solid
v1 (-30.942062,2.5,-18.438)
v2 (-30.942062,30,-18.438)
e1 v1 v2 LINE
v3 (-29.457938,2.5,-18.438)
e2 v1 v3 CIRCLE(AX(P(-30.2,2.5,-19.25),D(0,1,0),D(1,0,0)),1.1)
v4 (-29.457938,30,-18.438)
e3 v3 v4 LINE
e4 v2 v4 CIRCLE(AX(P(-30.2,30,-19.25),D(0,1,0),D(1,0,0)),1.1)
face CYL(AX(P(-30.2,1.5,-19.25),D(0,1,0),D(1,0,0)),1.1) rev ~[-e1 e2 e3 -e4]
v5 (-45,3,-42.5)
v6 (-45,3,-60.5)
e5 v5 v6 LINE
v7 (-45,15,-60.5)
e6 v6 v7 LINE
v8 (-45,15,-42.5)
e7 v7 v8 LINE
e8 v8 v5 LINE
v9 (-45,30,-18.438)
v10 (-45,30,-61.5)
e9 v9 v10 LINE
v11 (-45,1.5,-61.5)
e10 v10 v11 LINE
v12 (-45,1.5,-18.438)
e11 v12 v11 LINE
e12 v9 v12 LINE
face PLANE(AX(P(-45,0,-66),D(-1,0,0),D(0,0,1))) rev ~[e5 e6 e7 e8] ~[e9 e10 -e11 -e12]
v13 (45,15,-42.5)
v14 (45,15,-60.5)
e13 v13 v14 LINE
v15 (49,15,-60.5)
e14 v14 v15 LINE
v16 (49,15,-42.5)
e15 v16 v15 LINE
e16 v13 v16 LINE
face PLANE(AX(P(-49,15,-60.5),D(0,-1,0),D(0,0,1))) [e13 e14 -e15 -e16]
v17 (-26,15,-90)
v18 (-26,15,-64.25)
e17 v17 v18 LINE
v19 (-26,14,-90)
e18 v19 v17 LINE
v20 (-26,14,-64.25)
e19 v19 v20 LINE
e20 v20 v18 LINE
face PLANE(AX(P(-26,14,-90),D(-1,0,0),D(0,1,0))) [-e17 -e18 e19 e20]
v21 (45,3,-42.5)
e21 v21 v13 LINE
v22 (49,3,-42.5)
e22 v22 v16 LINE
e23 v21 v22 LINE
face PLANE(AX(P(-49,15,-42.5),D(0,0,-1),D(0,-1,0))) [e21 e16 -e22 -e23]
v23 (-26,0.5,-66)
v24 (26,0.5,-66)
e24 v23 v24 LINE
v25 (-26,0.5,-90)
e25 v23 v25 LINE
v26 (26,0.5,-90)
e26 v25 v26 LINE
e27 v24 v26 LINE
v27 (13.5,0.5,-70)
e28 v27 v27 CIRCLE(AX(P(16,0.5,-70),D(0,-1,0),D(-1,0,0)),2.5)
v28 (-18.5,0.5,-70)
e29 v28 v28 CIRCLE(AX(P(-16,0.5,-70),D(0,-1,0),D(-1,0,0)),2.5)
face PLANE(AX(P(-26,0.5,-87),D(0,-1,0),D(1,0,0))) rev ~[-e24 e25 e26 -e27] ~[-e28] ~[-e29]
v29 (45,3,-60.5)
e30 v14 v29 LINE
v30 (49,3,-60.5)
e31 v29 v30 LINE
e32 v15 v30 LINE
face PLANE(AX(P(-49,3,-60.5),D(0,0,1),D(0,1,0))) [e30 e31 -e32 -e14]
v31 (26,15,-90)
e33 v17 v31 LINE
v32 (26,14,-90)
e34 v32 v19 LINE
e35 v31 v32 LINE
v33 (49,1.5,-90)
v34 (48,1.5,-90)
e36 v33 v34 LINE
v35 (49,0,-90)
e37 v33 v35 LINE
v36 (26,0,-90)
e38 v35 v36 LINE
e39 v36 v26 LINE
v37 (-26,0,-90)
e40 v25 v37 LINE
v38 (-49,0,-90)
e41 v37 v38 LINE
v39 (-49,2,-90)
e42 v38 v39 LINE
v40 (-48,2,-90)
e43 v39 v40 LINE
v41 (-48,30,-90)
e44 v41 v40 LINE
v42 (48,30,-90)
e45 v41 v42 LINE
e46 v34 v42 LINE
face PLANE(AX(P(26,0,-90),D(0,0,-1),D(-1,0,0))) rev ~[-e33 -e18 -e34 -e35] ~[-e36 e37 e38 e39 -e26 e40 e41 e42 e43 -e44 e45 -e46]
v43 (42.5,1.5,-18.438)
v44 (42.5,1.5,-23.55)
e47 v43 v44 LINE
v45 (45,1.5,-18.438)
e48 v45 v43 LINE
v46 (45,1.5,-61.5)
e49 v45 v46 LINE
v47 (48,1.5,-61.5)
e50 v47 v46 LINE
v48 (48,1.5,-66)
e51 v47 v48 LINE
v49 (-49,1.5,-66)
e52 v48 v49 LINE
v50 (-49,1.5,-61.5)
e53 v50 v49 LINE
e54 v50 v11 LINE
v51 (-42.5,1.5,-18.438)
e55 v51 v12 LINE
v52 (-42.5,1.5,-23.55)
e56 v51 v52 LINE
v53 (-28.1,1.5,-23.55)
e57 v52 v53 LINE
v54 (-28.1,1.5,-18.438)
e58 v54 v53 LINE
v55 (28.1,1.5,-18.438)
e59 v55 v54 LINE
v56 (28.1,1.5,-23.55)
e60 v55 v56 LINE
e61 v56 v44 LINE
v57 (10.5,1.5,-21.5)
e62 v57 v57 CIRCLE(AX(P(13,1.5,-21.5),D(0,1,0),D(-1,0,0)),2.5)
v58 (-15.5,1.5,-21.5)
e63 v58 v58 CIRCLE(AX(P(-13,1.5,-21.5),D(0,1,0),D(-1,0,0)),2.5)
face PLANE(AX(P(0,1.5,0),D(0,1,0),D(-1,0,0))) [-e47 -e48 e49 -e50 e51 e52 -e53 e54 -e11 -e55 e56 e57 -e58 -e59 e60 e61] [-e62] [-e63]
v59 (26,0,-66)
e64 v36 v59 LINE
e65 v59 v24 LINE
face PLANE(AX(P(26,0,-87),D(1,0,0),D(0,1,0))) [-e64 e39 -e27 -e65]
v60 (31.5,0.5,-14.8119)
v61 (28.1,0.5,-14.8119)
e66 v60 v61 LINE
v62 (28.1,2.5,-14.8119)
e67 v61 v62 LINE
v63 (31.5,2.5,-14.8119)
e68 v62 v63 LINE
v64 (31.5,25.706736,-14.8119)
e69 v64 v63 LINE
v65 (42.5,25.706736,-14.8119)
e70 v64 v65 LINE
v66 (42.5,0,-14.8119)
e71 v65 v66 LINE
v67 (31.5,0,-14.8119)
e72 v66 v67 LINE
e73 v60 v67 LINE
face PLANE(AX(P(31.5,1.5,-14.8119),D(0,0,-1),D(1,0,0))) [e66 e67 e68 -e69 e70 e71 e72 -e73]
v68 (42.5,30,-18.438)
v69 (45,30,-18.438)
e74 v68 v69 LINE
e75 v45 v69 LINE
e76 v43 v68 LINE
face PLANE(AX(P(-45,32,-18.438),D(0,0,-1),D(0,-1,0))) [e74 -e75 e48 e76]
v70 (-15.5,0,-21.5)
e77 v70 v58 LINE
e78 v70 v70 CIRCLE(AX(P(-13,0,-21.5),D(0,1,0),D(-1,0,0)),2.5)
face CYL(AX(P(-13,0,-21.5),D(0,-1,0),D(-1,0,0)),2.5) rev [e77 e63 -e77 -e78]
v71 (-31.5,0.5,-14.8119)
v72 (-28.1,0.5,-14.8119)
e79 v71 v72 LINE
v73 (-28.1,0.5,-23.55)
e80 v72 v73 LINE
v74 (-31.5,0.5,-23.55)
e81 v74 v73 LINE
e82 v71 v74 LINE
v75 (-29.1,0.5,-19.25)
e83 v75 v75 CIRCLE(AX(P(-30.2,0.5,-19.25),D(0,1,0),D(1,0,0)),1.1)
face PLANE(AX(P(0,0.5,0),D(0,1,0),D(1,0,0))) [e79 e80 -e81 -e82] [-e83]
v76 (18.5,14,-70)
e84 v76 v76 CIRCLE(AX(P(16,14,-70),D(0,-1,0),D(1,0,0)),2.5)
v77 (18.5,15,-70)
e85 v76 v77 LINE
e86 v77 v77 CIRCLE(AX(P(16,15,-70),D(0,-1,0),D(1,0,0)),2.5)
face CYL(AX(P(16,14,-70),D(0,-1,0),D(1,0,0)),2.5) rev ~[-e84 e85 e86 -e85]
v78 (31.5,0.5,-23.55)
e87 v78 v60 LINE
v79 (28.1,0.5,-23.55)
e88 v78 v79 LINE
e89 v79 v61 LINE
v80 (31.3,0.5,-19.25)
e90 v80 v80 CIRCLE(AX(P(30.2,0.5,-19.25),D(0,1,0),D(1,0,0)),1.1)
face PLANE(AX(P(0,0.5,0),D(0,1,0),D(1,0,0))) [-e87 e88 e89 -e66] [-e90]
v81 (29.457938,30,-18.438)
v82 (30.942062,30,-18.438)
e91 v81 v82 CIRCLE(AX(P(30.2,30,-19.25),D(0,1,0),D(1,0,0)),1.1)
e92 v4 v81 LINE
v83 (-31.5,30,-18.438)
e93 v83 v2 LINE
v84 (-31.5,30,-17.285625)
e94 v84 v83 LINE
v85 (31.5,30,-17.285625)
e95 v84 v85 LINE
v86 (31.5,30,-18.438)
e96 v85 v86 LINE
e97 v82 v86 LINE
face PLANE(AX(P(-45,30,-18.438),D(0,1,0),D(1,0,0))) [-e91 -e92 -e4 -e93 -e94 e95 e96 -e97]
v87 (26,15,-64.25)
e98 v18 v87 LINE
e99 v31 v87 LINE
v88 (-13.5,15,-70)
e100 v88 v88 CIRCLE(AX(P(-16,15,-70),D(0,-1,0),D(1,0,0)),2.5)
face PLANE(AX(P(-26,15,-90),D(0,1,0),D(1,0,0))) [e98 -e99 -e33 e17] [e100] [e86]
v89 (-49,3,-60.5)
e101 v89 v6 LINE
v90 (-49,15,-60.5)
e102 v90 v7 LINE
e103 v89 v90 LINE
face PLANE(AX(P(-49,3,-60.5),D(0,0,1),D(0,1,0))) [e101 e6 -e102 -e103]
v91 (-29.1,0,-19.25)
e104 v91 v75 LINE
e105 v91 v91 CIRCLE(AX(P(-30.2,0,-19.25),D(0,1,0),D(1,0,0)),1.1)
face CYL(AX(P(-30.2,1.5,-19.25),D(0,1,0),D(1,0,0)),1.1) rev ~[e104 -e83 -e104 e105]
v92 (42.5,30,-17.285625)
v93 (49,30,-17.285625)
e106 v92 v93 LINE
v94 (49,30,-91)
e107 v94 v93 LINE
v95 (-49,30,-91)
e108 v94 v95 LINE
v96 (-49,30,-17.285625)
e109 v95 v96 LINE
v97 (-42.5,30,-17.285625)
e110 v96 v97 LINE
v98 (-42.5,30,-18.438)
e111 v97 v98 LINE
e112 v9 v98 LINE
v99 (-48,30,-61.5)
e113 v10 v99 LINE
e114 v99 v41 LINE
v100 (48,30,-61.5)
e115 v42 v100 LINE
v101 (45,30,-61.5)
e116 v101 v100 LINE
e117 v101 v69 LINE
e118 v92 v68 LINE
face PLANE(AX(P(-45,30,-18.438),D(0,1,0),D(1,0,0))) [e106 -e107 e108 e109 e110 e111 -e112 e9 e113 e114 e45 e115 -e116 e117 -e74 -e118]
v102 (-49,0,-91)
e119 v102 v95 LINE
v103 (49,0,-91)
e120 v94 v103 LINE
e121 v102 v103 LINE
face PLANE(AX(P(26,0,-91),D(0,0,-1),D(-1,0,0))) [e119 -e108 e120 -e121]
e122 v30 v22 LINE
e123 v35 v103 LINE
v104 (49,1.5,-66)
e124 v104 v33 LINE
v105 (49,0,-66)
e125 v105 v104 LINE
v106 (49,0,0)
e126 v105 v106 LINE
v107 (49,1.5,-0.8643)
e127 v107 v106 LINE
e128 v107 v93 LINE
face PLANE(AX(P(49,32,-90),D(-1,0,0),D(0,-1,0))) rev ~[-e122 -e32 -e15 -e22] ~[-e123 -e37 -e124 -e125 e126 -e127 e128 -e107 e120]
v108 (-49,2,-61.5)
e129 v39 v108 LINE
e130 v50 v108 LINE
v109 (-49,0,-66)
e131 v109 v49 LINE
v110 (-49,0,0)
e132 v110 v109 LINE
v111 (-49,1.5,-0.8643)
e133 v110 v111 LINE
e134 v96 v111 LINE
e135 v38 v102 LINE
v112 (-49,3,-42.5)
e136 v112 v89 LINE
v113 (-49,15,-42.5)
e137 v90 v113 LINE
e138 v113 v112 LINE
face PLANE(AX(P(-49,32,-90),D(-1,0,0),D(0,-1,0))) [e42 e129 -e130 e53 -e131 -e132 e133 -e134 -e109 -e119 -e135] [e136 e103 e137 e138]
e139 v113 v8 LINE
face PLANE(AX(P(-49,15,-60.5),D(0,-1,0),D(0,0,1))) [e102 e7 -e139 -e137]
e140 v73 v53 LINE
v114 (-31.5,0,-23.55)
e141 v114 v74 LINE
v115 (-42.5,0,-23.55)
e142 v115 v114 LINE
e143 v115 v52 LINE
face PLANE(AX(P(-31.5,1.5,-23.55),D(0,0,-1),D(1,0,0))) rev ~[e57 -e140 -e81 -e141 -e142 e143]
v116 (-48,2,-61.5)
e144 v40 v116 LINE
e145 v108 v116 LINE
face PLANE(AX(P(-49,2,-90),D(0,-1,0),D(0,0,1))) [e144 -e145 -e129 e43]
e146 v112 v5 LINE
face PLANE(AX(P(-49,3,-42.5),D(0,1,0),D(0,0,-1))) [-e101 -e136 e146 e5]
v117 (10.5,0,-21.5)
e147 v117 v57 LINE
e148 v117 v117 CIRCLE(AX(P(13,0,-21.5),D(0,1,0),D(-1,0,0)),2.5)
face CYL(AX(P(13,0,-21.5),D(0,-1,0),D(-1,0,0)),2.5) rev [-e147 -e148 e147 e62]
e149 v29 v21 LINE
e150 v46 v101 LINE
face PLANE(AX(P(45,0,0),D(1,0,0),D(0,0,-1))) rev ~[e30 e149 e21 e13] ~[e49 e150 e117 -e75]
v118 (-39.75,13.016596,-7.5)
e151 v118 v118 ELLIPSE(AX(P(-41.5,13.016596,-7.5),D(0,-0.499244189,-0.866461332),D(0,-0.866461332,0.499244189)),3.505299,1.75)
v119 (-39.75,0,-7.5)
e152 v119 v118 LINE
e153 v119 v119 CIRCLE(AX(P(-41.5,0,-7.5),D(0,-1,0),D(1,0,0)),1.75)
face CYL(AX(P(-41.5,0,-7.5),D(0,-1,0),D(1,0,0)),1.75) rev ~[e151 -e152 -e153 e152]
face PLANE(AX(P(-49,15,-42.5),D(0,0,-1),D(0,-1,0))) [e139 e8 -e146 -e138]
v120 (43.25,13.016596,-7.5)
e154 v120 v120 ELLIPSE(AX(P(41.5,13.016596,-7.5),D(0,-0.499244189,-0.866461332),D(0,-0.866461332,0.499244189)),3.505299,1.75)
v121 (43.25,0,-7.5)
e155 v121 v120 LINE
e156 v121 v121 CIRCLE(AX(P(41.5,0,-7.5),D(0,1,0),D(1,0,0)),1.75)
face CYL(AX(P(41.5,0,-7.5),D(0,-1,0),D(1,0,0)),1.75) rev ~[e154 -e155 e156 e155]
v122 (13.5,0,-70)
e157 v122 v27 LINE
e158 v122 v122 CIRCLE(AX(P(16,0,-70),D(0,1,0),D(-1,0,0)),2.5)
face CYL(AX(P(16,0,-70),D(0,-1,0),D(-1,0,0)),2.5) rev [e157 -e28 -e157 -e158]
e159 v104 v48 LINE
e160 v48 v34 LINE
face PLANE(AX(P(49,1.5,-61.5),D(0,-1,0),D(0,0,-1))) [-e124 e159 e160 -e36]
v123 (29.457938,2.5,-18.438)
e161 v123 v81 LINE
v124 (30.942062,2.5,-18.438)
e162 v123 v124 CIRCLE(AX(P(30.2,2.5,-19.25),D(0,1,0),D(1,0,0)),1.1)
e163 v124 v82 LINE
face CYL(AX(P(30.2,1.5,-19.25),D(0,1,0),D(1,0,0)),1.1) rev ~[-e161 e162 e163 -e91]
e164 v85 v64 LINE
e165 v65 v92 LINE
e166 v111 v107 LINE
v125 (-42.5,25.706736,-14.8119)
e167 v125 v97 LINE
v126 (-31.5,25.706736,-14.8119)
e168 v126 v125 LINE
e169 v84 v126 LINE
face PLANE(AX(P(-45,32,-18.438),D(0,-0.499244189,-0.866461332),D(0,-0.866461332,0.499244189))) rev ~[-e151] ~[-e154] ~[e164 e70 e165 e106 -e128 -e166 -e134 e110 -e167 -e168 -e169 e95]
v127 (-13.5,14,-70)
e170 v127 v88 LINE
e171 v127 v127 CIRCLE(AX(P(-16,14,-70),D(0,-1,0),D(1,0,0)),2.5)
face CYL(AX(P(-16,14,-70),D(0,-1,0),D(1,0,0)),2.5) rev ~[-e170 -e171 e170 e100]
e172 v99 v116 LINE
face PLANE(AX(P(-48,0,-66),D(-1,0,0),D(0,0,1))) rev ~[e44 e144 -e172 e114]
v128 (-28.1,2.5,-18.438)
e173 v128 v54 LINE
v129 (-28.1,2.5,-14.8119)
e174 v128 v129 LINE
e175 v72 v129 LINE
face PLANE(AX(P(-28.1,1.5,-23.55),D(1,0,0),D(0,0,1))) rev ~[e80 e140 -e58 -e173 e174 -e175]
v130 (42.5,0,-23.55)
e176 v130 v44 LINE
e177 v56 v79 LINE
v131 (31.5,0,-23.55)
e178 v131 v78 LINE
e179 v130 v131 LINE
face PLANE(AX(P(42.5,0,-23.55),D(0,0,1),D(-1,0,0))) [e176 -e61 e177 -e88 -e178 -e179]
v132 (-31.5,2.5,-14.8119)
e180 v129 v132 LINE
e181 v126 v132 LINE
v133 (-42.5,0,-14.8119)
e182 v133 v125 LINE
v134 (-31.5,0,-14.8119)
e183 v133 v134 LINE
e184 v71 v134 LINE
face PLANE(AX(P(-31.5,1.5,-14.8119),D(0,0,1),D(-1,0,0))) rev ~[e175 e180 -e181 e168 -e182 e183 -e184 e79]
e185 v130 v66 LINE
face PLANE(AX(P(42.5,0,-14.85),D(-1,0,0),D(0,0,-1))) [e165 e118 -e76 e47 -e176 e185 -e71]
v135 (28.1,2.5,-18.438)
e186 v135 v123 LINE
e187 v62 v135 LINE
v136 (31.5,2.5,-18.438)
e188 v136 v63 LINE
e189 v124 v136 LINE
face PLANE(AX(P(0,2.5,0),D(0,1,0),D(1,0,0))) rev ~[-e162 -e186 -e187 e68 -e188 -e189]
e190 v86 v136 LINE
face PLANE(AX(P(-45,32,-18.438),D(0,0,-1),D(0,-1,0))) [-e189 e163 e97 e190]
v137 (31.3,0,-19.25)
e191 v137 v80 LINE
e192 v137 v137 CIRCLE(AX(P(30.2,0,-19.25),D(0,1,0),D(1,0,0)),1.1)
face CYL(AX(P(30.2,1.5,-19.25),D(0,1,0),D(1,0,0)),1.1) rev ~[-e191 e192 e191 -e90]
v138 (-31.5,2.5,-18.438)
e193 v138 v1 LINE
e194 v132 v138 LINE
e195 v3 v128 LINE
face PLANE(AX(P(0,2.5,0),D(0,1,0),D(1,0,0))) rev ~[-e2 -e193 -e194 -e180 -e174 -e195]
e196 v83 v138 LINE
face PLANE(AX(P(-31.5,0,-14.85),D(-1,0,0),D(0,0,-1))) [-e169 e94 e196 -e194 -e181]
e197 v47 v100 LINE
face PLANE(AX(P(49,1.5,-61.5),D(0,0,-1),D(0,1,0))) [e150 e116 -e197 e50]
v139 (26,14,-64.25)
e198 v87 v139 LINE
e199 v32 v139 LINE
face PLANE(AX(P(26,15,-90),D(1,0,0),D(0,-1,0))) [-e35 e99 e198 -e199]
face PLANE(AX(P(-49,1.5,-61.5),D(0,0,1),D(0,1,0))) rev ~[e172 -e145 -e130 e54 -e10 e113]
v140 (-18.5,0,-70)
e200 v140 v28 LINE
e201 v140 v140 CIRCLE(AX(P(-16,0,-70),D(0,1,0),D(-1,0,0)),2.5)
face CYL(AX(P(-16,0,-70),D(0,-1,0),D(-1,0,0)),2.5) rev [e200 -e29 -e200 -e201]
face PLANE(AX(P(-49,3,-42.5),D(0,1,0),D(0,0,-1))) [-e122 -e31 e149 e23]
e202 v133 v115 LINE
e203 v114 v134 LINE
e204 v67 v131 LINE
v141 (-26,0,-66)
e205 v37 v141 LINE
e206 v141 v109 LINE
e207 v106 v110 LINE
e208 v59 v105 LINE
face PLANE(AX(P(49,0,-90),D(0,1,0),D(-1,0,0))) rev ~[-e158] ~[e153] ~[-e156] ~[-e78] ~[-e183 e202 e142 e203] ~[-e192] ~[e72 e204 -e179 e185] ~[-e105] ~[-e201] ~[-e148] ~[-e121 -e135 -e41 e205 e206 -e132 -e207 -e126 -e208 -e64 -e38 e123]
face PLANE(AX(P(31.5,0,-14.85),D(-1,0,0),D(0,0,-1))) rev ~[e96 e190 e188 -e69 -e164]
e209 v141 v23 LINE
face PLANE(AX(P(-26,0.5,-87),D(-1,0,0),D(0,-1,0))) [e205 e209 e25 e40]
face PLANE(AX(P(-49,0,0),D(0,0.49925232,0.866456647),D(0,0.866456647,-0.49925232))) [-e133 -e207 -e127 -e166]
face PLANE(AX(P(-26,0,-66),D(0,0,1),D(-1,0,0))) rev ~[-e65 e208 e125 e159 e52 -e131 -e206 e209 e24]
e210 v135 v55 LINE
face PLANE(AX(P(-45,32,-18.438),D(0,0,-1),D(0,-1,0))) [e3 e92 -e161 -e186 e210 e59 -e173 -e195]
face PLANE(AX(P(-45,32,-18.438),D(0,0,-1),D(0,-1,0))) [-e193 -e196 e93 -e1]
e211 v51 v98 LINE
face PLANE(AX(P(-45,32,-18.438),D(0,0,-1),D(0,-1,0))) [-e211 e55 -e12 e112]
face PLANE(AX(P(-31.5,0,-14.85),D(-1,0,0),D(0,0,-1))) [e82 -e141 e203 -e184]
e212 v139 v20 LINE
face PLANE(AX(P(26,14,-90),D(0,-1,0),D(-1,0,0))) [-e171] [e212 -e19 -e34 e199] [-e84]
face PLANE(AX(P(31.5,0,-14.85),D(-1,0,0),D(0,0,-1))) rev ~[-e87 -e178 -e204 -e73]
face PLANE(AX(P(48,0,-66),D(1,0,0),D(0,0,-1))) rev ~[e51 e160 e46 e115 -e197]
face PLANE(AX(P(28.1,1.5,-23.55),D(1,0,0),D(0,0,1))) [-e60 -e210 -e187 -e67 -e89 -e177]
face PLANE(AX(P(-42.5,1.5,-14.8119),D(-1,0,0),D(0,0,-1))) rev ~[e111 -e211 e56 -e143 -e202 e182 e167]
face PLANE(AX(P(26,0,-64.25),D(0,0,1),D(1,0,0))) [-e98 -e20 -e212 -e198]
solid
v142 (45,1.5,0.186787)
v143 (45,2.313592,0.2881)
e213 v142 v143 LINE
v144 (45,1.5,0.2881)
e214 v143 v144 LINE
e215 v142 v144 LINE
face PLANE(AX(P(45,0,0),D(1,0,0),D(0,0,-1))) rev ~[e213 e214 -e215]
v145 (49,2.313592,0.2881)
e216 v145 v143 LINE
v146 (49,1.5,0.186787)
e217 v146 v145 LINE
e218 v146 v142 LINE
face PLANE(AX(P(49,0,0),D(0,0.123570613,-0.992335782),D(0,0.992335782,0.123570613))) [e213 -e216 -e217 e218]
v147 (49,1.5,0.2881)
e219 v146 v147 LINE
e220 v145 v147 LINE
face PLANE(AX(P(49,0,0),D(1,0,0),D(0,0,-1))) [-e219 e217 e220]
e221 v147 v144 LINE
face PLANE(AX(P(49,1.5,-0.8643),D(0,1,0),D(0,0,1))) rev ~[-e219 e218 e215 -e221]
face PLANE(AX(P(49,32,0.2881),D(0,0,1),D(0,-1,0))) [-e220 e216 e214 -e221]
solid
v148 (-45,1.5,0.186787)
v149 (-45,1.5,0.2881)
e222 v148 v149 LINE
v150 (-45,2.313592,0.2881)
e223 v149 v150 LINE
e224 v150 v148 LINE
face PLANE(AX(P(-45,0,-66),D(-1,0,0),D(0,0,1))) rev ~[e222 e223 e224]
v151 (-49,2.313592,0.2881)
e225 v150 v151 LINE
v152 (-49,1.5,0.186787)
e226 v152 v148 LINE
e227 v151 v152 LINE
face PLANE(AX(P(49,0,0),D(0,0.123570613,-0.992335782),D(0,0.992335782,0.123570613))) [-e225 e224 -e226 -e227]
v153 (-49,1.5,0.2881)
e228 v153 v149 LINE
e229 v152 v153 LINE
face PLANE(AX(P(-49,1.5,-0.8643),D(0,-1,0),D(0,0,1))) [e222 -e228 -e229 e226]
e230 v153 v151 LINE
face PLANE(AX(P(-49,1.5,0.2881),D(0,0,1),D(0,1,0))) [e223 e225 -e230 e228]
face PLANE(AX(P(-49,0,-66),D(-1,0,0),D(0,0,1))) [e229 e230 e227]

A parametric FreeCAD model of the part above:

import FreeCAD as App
import Part
import Sketcher

V = App.Vector
Q = App.Units.Quantity


def add_polygon(sketch, points):
    """Adds a closed chain of lines whose ends are joined by coincident constraints."""
    first, n = sketch.GeometryCount, len(points)
    for a, b in zip(points, points[1:] + points[:1]):
        sketch.addGeometry(Part.LineSegment(App.Vector(*a, 0), App.Vector(*b, 0)), False)
    for i in range(n):
        sketch.addConstraint(Sketcher.Constraint("Coincident", first + i, 2, first + (i + 1) % n, 1))

doc = App.newDocument("Part")
body = doc.addObject("PartDesign::Body", "Body")
body.AllowCompound = True

# Sketch on XZ plane
sketch1 = doc.addObject("Sketcher::SketchObject", "Sketch")
body.addObject(sketch1)
sketch1.AttachmentSupport = (doc.XZ_Plane, [""])
sketch1.MapMode = "FlatFace"
add_polygon(sketch1, [(-49, 0), (49, 0), (49, -66), (26, -66), (26, -87), (-26, -87), (-26, -66), (-49, -66)])  # lines 0-7
sketch1.addGeometry(Part.Circle(V(16, -70, 0), V(0, 0, 1), 2.5), False)  # 8
sketch1.addGeometry(Part.Circle(V(-16, -70, 0), V(0, 0, 1), 2.5), False)  # 9
add_polygon(sketch1, [(31.5, -23.6), (42.5, -23.6), (42.5, -14.8), (31.5, -14.8)])  # lines 10-13
sketch1.addGeometry(Part.Circle(V(30.2, -19.2, 0), V(0, 0, 1), 1.1), False)  # 14
sketch1.addGeometry(Part.Circle(V(41.5, -7.5, 0), V(0, 0, 1), 1.8), False)  # 15
sketch1.addGeometry(Part.Circle(V(13, -21.5, 0), V(0, 0, 1), 2.5), False)  # 16
sketch1.addGeometry(Part.Circle(V(-13, -21.5, 0), V(0, 0, 1), 2.5), False)  # 17
sketch1.addGeometry(Part.Circle(V(-41.5, -7.5, 0), V(0, 0, 1), 1.8), False)  # 18
add_polygon(sketch1, [(-42.5, -14.8), (-42.5, -23.6), (-31.5, -23.6), (-31.5, -14.8)])  # lines 19-22
sketch1.addGeometry(Part.Circle(V(-30.2, -19.2, 0), V(0, 0, 1), 1.1), False)  # 23
sketch1.addConstraint([
    Sketcher.Constraint("Horizontal", 0),
    Sketcher.Constraint("Vertical", 1),
    Sketcher.Constraint("Horizontal", 2),
    Sketcher.Constraint("Vertical", 3),
    Sketcher.Constraint("Horizontal", 4),
    Sketcher.Constraint("Vertical", 5),
    Sketcher.Constraint("Horizontal", 6),
    Sketcher.Constraint("Vertical", 7),
    Sketcher.Constraint("Horizontal", 10),
    Sketcher.Constraint("Vertical", 11),
    Sketcher.Constraint("Horizontal", 12),
    Sketcher.Constraint("Vertical", 13),
    Sketcher.Constraint("Vertical", 19),
    Sketcher.Constraint("Horizontal", 20),
    Sketcher.Constraint("Vertical", 21),
    Sketcher.Constraint("Horizontal", 22),
    Sketcher.Constraint("Equal", 8, 9),
    Sketcher.Constraint("Equal", 9, 16),
    Sketcher.Constraint("Equal", 16, 17),
    Sketcher.Constraint("Equal", 15, 18),
    Sketcher.Constraint("Equal", 14, 23),
    Sketcher.Constraint("Symmetric", 0, 2, 7, 2, -1, 1),
    Sketcher.Constraint("Symmetric", 8, 3, 9, 3, -2),
    Sketcher.Constraint("Symmetric", 16, 3, 17, 3, -2),
    Sketcher.Constraint("Symmetric", 15, 3, 18, 3, -2),
    Sketcher.Constraint("Symmetric", 14, 3, 23, 3, -2),
    Sketcher.Constraint("Symmetric", 2, 2, 5, 2, -2),
    Sketcher.Constraint("Symmetric", 10, 2, 19, 2, -2),
    Sketcher.Constraint("Symmetric", 12, 2, 21, 2, -2),
    Sketcher.Constraint("Diameter", 8, 5.0),
    Sketcher.Constraint("Diameter", 14, 2.1),
    Sketcher.Constraint("Diameter", 15, 3.5),
    Sketcher.Constraint("DistanceX", 0, 1, 0, 2, 98.0),
    Sketcher.Constraint("DistanceX", 2, 2, 2, 1, 23.0),
    Sketcher.Constraint("DistanceX", 10, 1, 10, 2, 11.0),
    Sketcher.Constraint("DistanceY", 3, 2, 3, 1, 21.0),
    Sketcher.Constraint("DistanceY", 11, 1, 11, 2, 8.7),
    Sketcher.Constraint("DistanceX", -1, 1, 8, 3, 16.0),
    Sketcher.Constraint("DistanceY", 3, 2, -1, 1, 87.0),
    Sketcher.Constraint("DistanceX", 16, 3, 0, 2, 36.0),
    Sketcher.Constraint("DistanceY", 8, 3, 1, 2, 4.0),
    Sketcher.Constraint("DistanceX", 15, 3, 10, 2, 1.0),
    Sketcher.Constraint("DistanceY", 15, 3, -1, 1, 7.5),
    Sketcher.Constraint("DistanceX", 15, 3, 0, 2, 7.5),
    Sketcher.Constraint("DistanceY", 10, 2, 14, 3, 4.3),
    Sketcher.Constraint("DistanceX", 14, 3, 12, 2, 1.3),
    Sketcher.Constraint("DistanceY", 16, 3, 15, 3, 14.0),
    Sketcher.Constraint("DistanceY", 14, 3, -1, 1, 19.25),
])
pad1 = doc.addObject("PartDesign::Pad", "Pad")
body.addObject(pad1)
pad1.Profile = sketch1
pad1.Length = 1.5
pad1.Reversed = True

# Sketch on YZ plane
sketch2 = doc.addObject("Sketcher::SketchObject", "Sketch001")
body.addObject(sketch2)
sketch2.AttachmentSupport = (doc.YZ_Plane, [""])
sketch2.MapMode = "FlatFace"
sketch2.AttachmentOffset = App.Placement(V(0, 0, -49), App.Rotation())
add_polygon(sketch2, [(1.5, -0.9), (0, 0), (1.5, 0)])  # lines 0-2
sketch2.addConstraint([
    Sketcher.Constraint("Horizontal", 1),
    Sketcher.Constraint("Vertical", 2),
    Sketcher.Constraint("Coincident", 0, 2, -1, 1),
    Sketcher.Constraint("DistanceX", 1, 1, 1, 2, 1.5),
    Sketcher.Constraint("Angle", 0, Q("150.0495 deg")),
])
pocket1 = doc.addObject("PartDesign::Pocket", "Pocket")
body.addObject(pocket1)
pocket1.Profile = sketch2
pocket1.Length = 100
pocket1.Reversed = True

# Sketch on YZ plane
sketch3 = doc.addObject("Sketcher::SketchObject", "Sketch002")
body.addObject(sketch3)
sketch3.AttachmentSupport = (doc.YZ_Plane, [""])
sketch3.MapMode = "FlatFace"
sketch3.AttachmentOffset = App.Placement(V(0, 0, 49), App.Rotation())
add_polygon(sketch3, [(2, 0), (2, -62), (32, -62), (32, 0)])  # lines 0-3
sketch3.addConstraint([
    Sketcher.Constraint("Vertical", 0),
    Sketcher.Constraint("Horizontal", 1),
    Sketcher.Constraint("Vertical", 2),
    Sketcher.Constraint("Horizontal", 3),
    Sketcher.Constraint("DistanceX", 1, 1, 1, 2, 30.5),
    Sketcher.Constraint("DistanceX", -1, 1, 1, 2, 32.0),
    Sketcher.Constraint("DistanceY", 0, 2, -1, 1, 61.5),
    Sketcher.Constraint("DistanceY", 0, 2, 0, 1, 61.788),
])
pad2 = doc.addObject("PartDesign::Pad", "Pad001")
body.addObject(pad2)
pad2.Profile = sketch3
pad2.Length = 4
pad2.Reversed = True

# Sketch on YZ plane
sketch4 = doc.addObject("Sketcher::SketchObject", "Sketch003")
body.addObject(sketch4)
sketch4.AttachmentSupport = (doc.YZ_Plane, [""])
sketch4.MapMode = "FlatFace"
sketch4.AttachmentOffset = App.Placement(V(0, 0, -49), App.Rotation())
add_polygon(sketch4, [(2, -62), (2, 0), (32, 0), (32, -62)])  # lines 0-3
sketch4.addConstraint([
    Sketcher.Constraint("Vertical", 0),
    Sketcher.Constraint("Horizontal", 1),
    Sketcher.Constraint("Vertical", 2),
    Sketcher.Constraint("Horizontal", 3),
    Sketcher.Constraint("DistanceX", 1, 1, 1, 2, 30.5),
    Sketcher.Constraint("DistanceX", -1, 1, 1, 2, 32.0),
    Sketcher.Constraint("DistanceY", 2, 2, -1, 1, 61.5),
    Sketcher.Constraint("DistanceY", 0, 1, 0, 2, 61.788),
])
pad3 = doc.addObject("PartDesign::Pad", "Pad002")
body.addObject(pad3)
pad3.Profile = sketch4
pad3.Length = 4

# Sketch on YZ plane
sketch5 = doc.addObject("Sketcher::SketchObject", "Sketch004")
body.addObject(sketch5)
sketch5.AttachmentSupport = (doc.YZ_Plane, [""])
sketch5.MapMode = "FlatFace"
sketch5.AttachmentOffset = App.Placement(V(0, 0, 49), App.Rotation())
add_polygon(sketch5, [(0, 0), (1.5, -0.9), (32, -18.4), (32, 4)])  # lines 0-3
sketch5.addConstraint([
    Sketcher.Constraint("Vertical", 2),
    Sketcher.Constraint("Coincident", 3, 2, -1, 1),
    Sketcher.Constraint("Parallel", 0, 1),
    Sketcher.Constraint("DistanceX", -1, 1, 1, 2, 32.0),
    Sketcher.Constraint("DistanceX", -1, 1, 0, 2, 1.5),
    Sketcher.Constraint("Angle", 0, Q("-29.9505 deg")),
    Sketcher.Constraint("DistanceY", 2, 1, 2, 2, 22.4228),
])
pocket2 = doc.addObject("PartDesign::Pocket", "Pocket001")
body.addObject(pocket2)
pocket2.Profile = sketch5
pocket2.Length = 103.25

# Sketch on YZ plane
sketch6 = doc.addObject("Sketcher::SketchObject", "Sketch005")
body.addObject(sketch6)
sketch6.AttachmentSupport = (doc.YZ_Plane, [""])
sketch6.MapMode = "FlatFace"
sketch6.AttachmentOffset = App.Placement(V(0, 0, -45), App.Rotation())
add_polygon(sketch6, [(0, -18), (32, -18), (0, 0)])  # lines 0-2
sketch6.addConstraint([
    Sketcher.Constraint("Horizontal", 0),
    Sketcher.Constraint("Vertical", 2),
    Sketcher.Constraint("Coincident", 1, 2, -1, 1),
    Sketcher.Constraint("DistanceX", 0, 1, 0, 2, 32.0),
    Sketcher.Constraint("Angle", 1, Q("150.05 deg")),
])
pad4 = doc.addObject("PartDesign::Pad", "Pad003")
body.addObject(pad4)
pad4.Profile = sketch6
pad4.Length = 93

# Sketch on XZ plane
sketch7 = doc.addObject("Sketcher::SketchObject", "Sketch006")
body.addObject(sketch7)
sketch7.AttachmentSupport = (doc.XZ_Plane, [""])
sketch7.MapMode = "FlatFace"
sketch7.addGeometry([
    Part.Circle(V(41.5, -7.5, 0), V(0, 0, 1), 1.8),
    Part.Circle(V(-41.5, -7.5, 0), V(0, 0, 1), 1.8),
], False)
sketch7.addConstraint([
    Sketcher.Constraint("Equal", 0, 1),
    Sketcher.Constraint("Symmetric", 0, 3, 1, 3, -2),
    Sketcher.Constraint("Diameter", 0, 3.5),
    Sketcher.Constraint("DistanceY", 0, 3, -1, 1, 7.5),
    Sketcher.Constraint("DistanceX", 1, 3, 0, 3, 83.0),
])
pocket3 = doc.addObject("PartDesign::Pocket", "Pocket002")
body.addObject(pocket3)
pocket3.Profile = sketch7
pocket3.Length = 90.25

# Sketch on YZ plane
sketch8 = doc.addObject("Sketcher::SketchObject", "Sketch007")
body.addObject(sketch8)
sketch8.AttachmentSupport = (doc.YZ_Plane, [""])
sketch8.MapMode = "FlatFace"
sketch8.AttachmentOffset = App.Placement(V(0, 0, -49), App.Rotation())
add_polygon(sketch8, [(15, -42), (15, -60), (3, -60), (3, -42)])  # lines 0-3
sketch8.addConstraint([
    Sketcher.Constraint("Vertical", 0),
    Sketcher.Constraint("Horizontal", 1),
    Sketcher.Constraint("Vertical", 2),
    Sketcher.Constraint("Horizontal", 3),
    Sketcher.Constraint("DistanceX", 1, 2, 1, 1, 12.0),
    Sketcher.Constraint("DistanceY", 0, 2, 0, 1, 18.0),
    Sketcher.Constraint("DistanceX", -1, 1, 1, 2, 3.0),
    Sketcher.Constraint("DistanceY", 0, 2, -1, 1, 60.5),
])
pocket4 = doc.addObject("PartDesign::Pocket", "Pocket003")
body.addObject(pocket4)
pocket4.Profile = sketch8
pocket4.Length = 98.25
pocket4.Reversed = True

# Sketch on XZ plane
sketch9 = doc.addObject("Sketcher::SketchObject", "Sketch008")
body.addObject(sketch9)
sketch9.AttachmentSupport = (doc.XZ_Plane, [""])
sketch9.MapMode = "FlatFace"
sketch9.AttachmentOffset = App.Placement(V(0, 0, -1.5), App.Rotation())
add_polygon(sketch9, [(-31.5, -23.6), (-42.5, -23.6), (-42.5, -14.8), (-31.5, -14.8)])  # lines 0-3
sketch9.addGeometry(Part.Circle(V(-30.2, -19.2, 0), V(0, 0, 1), 1.1), False)  # 4
sketch9.addGeometry(Part.Circle(V(30.2, -19.2, 0), V(0, 0, 1), 1.1), False)  # 5
add_polygon(sketch9, [(42.5, -14.8), (42.5, -23.6), (31.5, -23.6), (31.5, -14.8)])  # lines 6-9
sketch9.addConstraint([
    Sketcher.Constraint("Horizontal", 0),
    Sketcher.Constraint("Vertical", 1),
    Sketcher.Constraint("Horizontal", 2),
    Sketcher.Constraint("Vertical", 3),
    Sketcher.Constraint("Vertical", 6),
    Sketcher.Constraint("Horizontal", 7),
    Sketcher.Constraint("Vertical", 8),
    Sketcher.Constraint("Horizontal", 9),
    Sketcher.Constraint("Equal", 4, 5),
    Sketcher.Constraint("Symmetric", 4, 3, 5, 3, -2),
    Sketcher.Constraint("Symmetric", 0, 2, 6, 2, -2),
    Sketcher.Constraint("Symmetric", 2, 2, 8, 2, -2),
    Sketcher.Constraint("Diameter", 4, 2.2),
    Sketcher.Constraint("DistanceX", 0, 2, 0, 1, 11.0),
    Sketcher.Constraint("DistanceY", 0, 2, 4, 3, 4.3),
    Sketcher.Constraint("DistanceX", 2, 2, 4, 3, 1.3),
    Sketcher.Constraint("DistanceX", 3, 2, 6, 2, 74.0),
    Sketcher.Constraint("DistanceY", 1, 1, 1, 2, 8.738),
    Sketcher.Constraint("DistanceY", 4, 3, -1, 1, 19.25),
])
pocket5 = doc.addObject("PartDesign::Pocket", "Pocket004")
body.addObject(pocket5)
pocket5.Profile = sketch9
pocket5.Length = 85.25
pocket5.Midplane = True

# Sketch on XZ plane
sketch10 = doc.addObject("Sketcher::SketchObject", "Sketch009")
body.addObject(sketch10)
sketch10.AttachmentSupport = (doc.XZ_Plane, [""])
sketch10.MapMode = "FlatFace"
sketch10.AttachmentOffset = App.Placement(V(0, 0, -1.5), App.Rotation())
add_polygon(sketch10, [(28.1, -23.6), (28.1, -14.8), (31.5, -14.8), (31.5, -23.6)])  # lines 0-3
add_polygon(sketch10, [(-31.5, -14.8), (-28.1, -14.8), (-28.1, -23.6), (-31.5, -23.6)])  # lines 4-7
sketch10.addConstraint([
    Sketcher.Constraint("Vertical", 0),
    Sketcher.Constraint("Horizontal", 1),
    Sketcher.Constraint("Vertical", 2),
    Sketcher.Constraint("Horizontal", 3),
    Sketcher.Constraint("Horizontal", 4),
    Sketcher.Constraint("Vertical", 5),
    Sketcher.Constraint("Horizontal", 6),
    Sketcher.Constraint("Vertical", 7),
    Sketcher.Constraint("Symmetric", 0, 2, 4, 2, -2),
    Sketcher.Constraint("Symmetric", 2, 2, 6, 2, -2),
    Sketcher.Constraint("DistanceX", 1, 1, 1, 2, 3.4),
    Sketcher.Constraint("DistanceX", 6, 2, 2, 2, 63.0),
    Sketcher.Constraint("DistanceY", 0, 1, 0, 2, 8.738),
    Sketcher.Constraint("DistanceY", 2, 2, -1, 1, 23.55),
])
pocket6 = doc.addObject("PartDesign::Pocket", "Pocket005")
body.addObject(pocket6)
pocket6.Profile = sketch10
pocket6.Length = 2
pocket6.Midplane = True

# Sketch on XZ plane
sketch11 = doc.addObject("Sketcher::SketchObject", "Sketch010")
body.addObject(sketch11)
sketch11.AttachmentSupport = (doc.XZ_Plane, [""])
sketch11.MapMode = "FlatFace"
sketch11.AttachmentOffset = App.Placement(V(0, 0, -1.5), App.Rotation())
add_polygon(sketch11, [(26, -66), (26, -87), (-26, -87), (-26, -66)])  # lines 0-3
sketch11.addConstraint([
    Sketcher.Constraint("Vertical", 0),
    Sketcher.Constraint("Horizontal", 1),
    Sketcher.Constraint("Vertical", 2),
    Sketcher.Constraint("Horizontal", 3),
    Sketcher.Constraint("DistanceX", 1, 2, 1, 1, 52.0),
    Sketcher.Constraint("DistanceY", 0, 2, 0, 1, 21.0),
    Sketcher.Constraint("DistanceX", -1, 1, 0, 2, 26.0),
    Sketcher.Constraint("DistanceY", 0, 2, -1, 1, 87.0),
])
pocket7 = doc.addObject("PartDesign::Pocket", "Pocket006")
body.addObject(pocket7)
pocket7.Profile = sketch11
pocket7.Length = 1
pocket7.Reversed = True

# Sketch on YZ plane
sketch12 = doc.addObject("Sketcher::SketchObject", "Sketch011")
body.addObject(sketch12)
sketch12.AttachmentSupport = (doc.YZ_Plane, [""])
sketch12.MapMode = "FlatFace"
sketch12.AttachmentOffset = App.Placement(V(0, 0, 49), App.Rotation())
add_polygon(sketch12, [(32, -62), (2, -62), (2, -90), (32, -90)])  # lines 0-3
sketch12.addConstraint([
    Sketcher.Constraint("Horizontal", 0),
    Sketcher.Constraint("Vertical", 1),
    Sketcher.Constraint("Horizontal", 2),
    Sketcher.Constraint("Vertical", 3),
    Sketcher.Constraint("DistanceY", 1, 2, 1, 1, 28.5),
    Sketcher.Constraint("DistanceX", 0, 2, 0, 1, 30.5),
    Sketcher.Constraint("DistanceY", 1, 2, -1, 1, 90.0),
    Sketcher.Constraint("DistanceX", -1, 1, 2, 2, 32.0),
])
pad5 = doc.addObject("PartDesign::Pad", "Pad004")
body.addObject(pad5)
pad5.Profile = sketch12
pad5.Length = 1
pad5.Reversed = True

# Sketch on YZ plane
sketch13 = doc.addObject("Sketcher::SketchObject", "Sketch012")
body.addObject(sketch13)
sketch13.AttachmentSupport = (doc.YZ_Plane, [""])
sketch13.MapMode = "FlatFace"
sketch13.AttachmentOffset = App.Placement(V(0, 0, -49), App.Rotation())
add_polygon(sketch13, [(2, -62), (32, -62), (32, -90), (2, -90)])  # lines 0-3
sketch13.addConstraint([
    Sketcher.Constraint("Horizontal", 0),
    Sketcher.Constraint("Vertical", 1),
    Sketcher.Constraint("Horizontal", 2),
    Sketcher.Constraint("Vertical", 3),
    Sketcher.Constraint("DistanceY", 1, 2, 1, 1, 28.5),
    Sketcher.Constraint("DistanceX", 0, 1, 0, 2, 30.0),
    Sketcher.Constraint("DistanceX", -1, 1, 0, 2, 32.0),
    Sketcher.Constraint("DistanceY", 1, 2, -1, 1, 90.0),
])
pad6 = doc.addObject("PartDesign::Pad", "Pad005")
body.addObject(pad6)
pad6.Profile = sketch13
pad6.Length = 1

# Sketch on XY plane
sketch14 = doc.addObject("Sketcher::SketchObject", "Sketch013")
body.addObject(sketch14)
sketch14.AttachmentSupport = (doc.XY_Plane, [""])
sketch14.MapMode = "FlatFace"
sketch14.AttachmentOffset = App.Placement(V(0, 0, -87), App.Rotation())
add_polygon(sketch14, [(-26, 0), (-26, 0.5), (26, 0.5), (26, 0)])  # lines 0-3
sketch14.addConstraint([
    Sketcher.Constraint("Vertical", 0),
    Sketcher.Constraint("Horizontal", 1),
    Sketcher.Constraint("Vertical", 2),
    Sketcher.Constraint("Horizontal", 3),
    Sketcher.Constraint("Symmetric", 2, 2, 3, 2, -1, 1),
    Sketcher.Constraint("DistanceX", 1, 1, 1, 2, 52.0),
    Sketcher.Constraint("DistanceY", 0, 1, 0, 2, 0.5),
])
pad7 = doc.addObject("PartDesign::Pad", "Pad006")
body.addObject(pad7)
pad7.Profile = sketch14
pad7.Length = 3
pad7.Reversed = True

# Sketch on XY plane
sketch15 = doc.addObject("Sketcher::SketchObject", "Sketch014")
body.addObject(sketch15)
sketch15.AttachmentSupport = (doc.XY_Plane, [""])
sketch15.MapMode = "FlatFace"
sketch15.AttachmentOffset = App.Placement(V(0, 0, -90), App.Rotation())
add_polygon(sketch15, [(49, 32), (49, 0), (-49, 0), (-49, 32)])  # lines 0-3
sketch15.addConstraint([
    Sketcher.Constraint("Vertical", 0),
    Sketcher.Constraint("Horizontal", 1),
    Sketcher.Constraint("Vertical", 2),
    Sketcher.Constraint("Horizontal", 3),
    Sketcher.Constraint("Symmetric", 0, 2, 1, 2, -1, 1),
    Sketcher.Constraint("DistanceX", 1, 2, 1, 1, 98.0),
    Sketcher.Constraint("DistanceY", 0, 2, 0, 1, 32.0),
])
pad8 = doc.addObject("PartDesign::Pad", "Pad007")
body.addObject(pad8)
pad8.Profile = sketch15
pad8.Length = 1
pad8.Reversed = True

# Sketch on XY plane
sketch16 = doc.addObject("Sketcher::SketchObject", "Sketch015")
body.addObject(sketch16)
sketch16.AttachmentSupport = (doc.XY_Plane, [""])
sketch16.MapMode = "FlatFace"
sketch16.AttachmentOffset = App.Placement(V(0, 0, -90), App.Rotation())
add_polygon(sketch16, [(26, 15), (-26, 15), (-26, 14), (26, 14)])  # lines 0-3
sketch16.addConstraint([
    Sketcher.Constraint("Horizontal", 0),
    Sketcher.Constraint("Vertical", 1),
    Sketcher.Constraint("Horizontal", 2),
    Sketcher.Constraint("Vertical", 3),
    Sketcher.Constraint("DistanceY", 1, 2, 1, 1, 1.0),
    Sketcher.Constraint("DistanceX", 0, 2, 0, 1, 52.0),
    Sketcher.Constraint("DistanceX", 0, 2, -1, 1, 26.0),
    Sketcher.Constraint("DistanceY", -1, 1, 0, 2, 15.0),
])
pad9 = doc.addObject("PartDesign::Pad", "Pad008")
body.addObject(pad9)
pad9.Profile = sketch16
pad9.Length = 25.75

# Sketch on XZ plane
sketch17 = doc.addObject("Sketcher::SketchObject", "Sketch016")
body.addObject(sketch17)
sketch17.AttachmentSupport = (doc.XZ_Plane, [""])
sketch17.MapMode = "FlatFace"
sketch17.AttachmentOffset = App.Placement(V(0, 0, -14), App.Rotation())
sketch17.addGeometry([
    Part.Circle(V(-16, -70, 0), V(0, 0, 1), 2.5),
    Part.Circle(V(16, -70, 0), V(0, 0, 1), 2.5),
], False)
sketch17.addConstraint([
    Sketcher.Constraint("Equal", 0, 1),
    Sketcher.Constraint("Symmetric", 0, 3, 1, 3, -2),
    Sketcher.Constraint("Diameter", 0, 5.0),
    Sketcher.Constraint("DistanceX", 0, 3, -1, 1, 16.0),
    Sketcher.Constraint("DistanceY", 0, 3, -1, 1, 70.0),
])
pocket8 = doc.addObject("PartDesign::Pocket", "Pocket007")
body.addObject(pocket8)
pocket8.Profile = sketch17
pocket8.Length = 25.75

# Sketch on XZ plane
sketch18 = doc.addObject("Sketcher::SketchObject", "Sketch017")
body.addObject(sketch18)
sketch18.AttachmentSupport = (doc.XZ_Plane, [""])
sketch18.MapMode = "FlatFace"
sketch18.AttachmentOffset = App.Placement(V(0, 0, -32), App.Rotation())
add_polygon(sketch18, [(-49, -91), (-49, 0), (49, 0), (49, -91)])  # lines 0-3
sketch18.addConstraint([
    Sketcher.Constraint("Vertical", 0),
    Sketcher.Constraint("Horizontal", 1),
    Sketcher.Constraint("Vertical", 2),
    Sketcher.Constraint("Horizontal", 3),
    Sketcher.Constraint("DistanceX", 1, 1, 1, 2, 98.0),
    Sketcher.Constraint("DistanceX", 0, 2, -1, 1, 49.0),
    Sketcher.Constraint("DistanceY", 2, 2, -1, 1, 91.0),
    Sketcher.Constraint("DistanceY", 0, 1, 0, 2, 91.1868),
])
pocket9 = doc.addObject("PartDesign::Pocket", "Pocket008")
body.addObject(pocket9)
pocket9.Profile = sketch18
pocket9.Length = 2
pocket9.Reversed = True

doc.recompute()
